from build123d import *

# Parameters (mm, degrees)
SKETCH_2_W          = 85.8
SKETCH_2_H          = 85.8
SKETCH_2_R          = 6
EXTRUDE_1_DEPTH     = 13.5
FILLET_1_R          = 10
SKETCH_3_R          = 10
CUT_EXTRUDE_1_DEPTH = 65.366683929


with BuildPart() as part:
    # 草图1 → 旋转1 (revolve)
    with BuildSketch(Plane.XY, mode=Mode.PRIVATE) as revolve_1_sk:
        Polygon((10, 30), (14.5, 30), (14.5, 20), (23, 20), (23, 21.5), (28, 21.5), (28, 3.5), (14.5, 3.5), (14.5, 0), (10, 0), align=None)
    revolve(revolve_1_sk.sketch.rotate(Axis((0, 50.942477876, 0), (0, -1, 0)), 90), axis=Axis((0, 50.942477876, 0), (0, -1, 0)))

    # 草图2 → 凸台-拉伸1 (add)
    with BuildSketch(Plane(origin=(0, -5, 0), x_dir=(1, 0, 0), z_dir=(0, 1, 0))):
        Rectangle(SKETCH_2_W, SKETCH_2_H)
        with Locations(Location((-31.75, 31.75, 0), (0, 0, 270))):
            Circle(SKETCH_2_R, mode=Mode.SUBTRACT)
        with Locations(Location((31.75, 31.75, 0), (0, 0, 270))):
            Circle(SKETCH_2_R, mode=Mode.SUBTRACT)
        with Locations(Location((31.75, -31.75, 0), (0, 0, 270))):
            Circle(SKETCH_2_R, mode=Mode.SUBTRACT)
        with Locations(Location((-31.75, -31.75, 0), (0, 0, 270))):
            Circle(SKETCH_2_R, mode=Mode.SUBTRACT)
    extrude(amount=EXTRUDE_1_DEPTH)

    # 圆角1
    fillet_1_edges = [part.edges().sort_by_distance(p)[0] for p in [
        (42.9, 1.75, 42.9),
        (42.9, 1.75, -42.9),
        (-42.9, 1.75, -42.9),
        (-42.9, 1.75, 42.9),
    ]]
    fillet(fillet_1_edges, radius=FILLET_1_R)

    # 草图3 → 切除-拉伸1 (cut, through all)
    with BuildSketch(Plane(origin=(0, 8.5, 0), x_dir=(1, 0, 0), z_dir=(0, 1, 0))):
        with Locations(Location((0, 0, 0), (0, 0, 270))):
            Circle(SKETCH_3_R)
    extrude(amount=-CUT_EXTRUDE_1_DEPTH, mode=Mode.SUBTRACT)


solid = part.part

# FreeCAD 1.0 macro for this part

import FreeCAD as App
import Part
import Sketcher
Q = App.Units.Quantity


def edges_at(feature, points):
    """Names of the edges that pass closest to the given points."""
    edges = feature.Shape.Edges
    near = lambda p: min(range(len(edges)), key=lambda i: edges[i].distToShape(Part.Vertex(*p))[0])
    return sorted({f"Edge{near(p) + 1}" for p in points})

doc = App.newDocument("Part")
body = doc.addObject("PartDesign::Body", "Body")

sketch1 = body.newObject("Sketcher::SketchObject", "Sketch")
sketch1.AttachmentSupport = (doc.getObject("XY_Plane"), [""])
sketch1.MapMode = "FlatFace"
sketch1.addGeometry([
    Part.LineSegment(App.Vector(14.5, 30, 0), App.Vector(10, 30, 0)),
    Part.LineSegment(App.Vector(10, 30, 0), App.Vector(10, 0, 0)),
    Part.LineSegment(App.Vector(10, 0, 0), App.Vector(14.5, 0, 0)),
    Part.LineSegment(App.Vector(14.5, 0, 0), App.Vector(14.5, 3.5, 0)),
    Part.LineSegment(App.Vector(14.5, 3.5, 0), App.Vector(28, 3.5, 0)),
    Part.LineSegment(App.Vector(28, 3.5, 0), App.Vector(28, 21.5, 0)),
    Part.LineSegment(App.Vector(28, 21.5, 0), App.Vector(23, 21.5, 0)),
    Part.LineSegment(App.Vector(23, 21.5, 0), App.Vector(23, 20, 0)),
    Part.LineSegment(App.Vector(23, 20, 0), App.Vector(14.5, 20, 0)),
    Part.LineSegment(App.Vector(14.5, 20, 0), App.Vector(14.5, 30, 0)),
], False)
sketch1.addConstraint([
    Sketcher.Constraint("Coincident", 0, 2, 1, 1),
    Sketcher.Constraint("Coincident", 1, 2, 2, 1),
    Sketcher.Constraint("Coincident", 2, 2, 3, 1),
    Sketcher.Constraint("Coincident", 3, 2, 4, 1),
    Sketcher.Constraint("Coincident", 4, 2, 5, 1),
    Sketcher.Constraint("Coincident", 5, 2, 6, 1),
    Sketcher.Constraint("Coincident", 6, 2, 7, 1),
    Sketcher.Constraint("Coincident", 7, 2, 8, 1),
    Sketcher.Constraint("Coincident", 8, 2, 9, 1),
    Sketcher.Constraint("Coincident", 9, 2, 0, 1),
    Sketcher.Constraint("Horizontal", 0),
    Sketcher.Constraint("Vertical", 1),
    Sketcher.Constraint("Horizontal", 2),
    Sketcher.Constraint("Vertical", 3),
    Sketcher.Constraint("Horizontal", 4),
    Sketcher.Constraint("Vertical", 5),
    Sketcher.Constraint("Horizontal", 6),
    Sketcher.Constraint("Vertical", 7),
    Sketcher.Constraint("Horizontal", 8),
    Sketcher.Constraint("Vertical", 9),
    Sketcher.Constraint("PointOnObject", 1, 2, -1),
    Sketcher.Constraint("Vertical", 3, 2, 8, 2),
    Sketcher.Constraint("DistanceX", 6, 2, 6, 1, Q("5 mm")),
    Sketcher.Constraint("DistanceY", 1, 2, 1, 1, Q("30 mm")),
    Sketcher.Constraint("DistanceY", 5, 1, 5, 2, Q("18 mm")),
    Sketcher.Constraint("DistanceY", 9, 1, 9, 2, Q("10 mm")),
    Sketcher.Constraint("DistanceX", 0, 2, 0, 1, Q("4.5 mm")),
    Sketcher.Constraint("DistanceX", 4, 1, 4, 2, Q("13.5 mm")),
    Sketcher.Constraint("DistanceY", 3, 1, 3, 2, Q("3.5 mm")),
    Sketcher.Constraint("DistanceX", -1, 1, 0, 2, Q("10 mm")),
])
revolution = body.newObject("PartDesign::Revolution", "Revolution")
revolution.Profile = sketch1
revolution.ReferenceAxis = (sketch1, ["V_Axis"])
revolution.Angle = 360

sketch2 = body.newObject("Sketcher::SketchObject", "Sketch001")
sketch2.AttachmentSupport = (doc.getObject("XZ_Plane"), [""])
sketch2.MapMode = "FlatFace"
sketch2.AttachmentOffset = App.Placement(App.Vector(0, 0, 5), App.Rotation())
sketch2.addGeometry([
    Part.LineSegment(App.Vector(-43, -43, 0), App.Vector(-43, 43, 0)),
    Part.LineSegment(App.Vector(-43, 43, 0), App.Vector(43, 43, 0)),
    Part.LineSegment(App.Vector(43, 43, 0), App.Vector(43, -43, 0)),
    Part.LineSegment(App.Vector(43, -43, 0), App.Vector(-43, -43, 0)),
    Part.Circle(App.Vector(-32, 32, 0), App.Vector(0, 0, 1), 6),
    Part.Circle(App.Vector(32, 32, 0), App.Vector(0, 0, 1), 6),
    Part.Circle(App.Vector(-32, -32, 0), App.Vector(0, 0, 1), 6),
    Part.Circle(App.Vector(32, -32, 0), App.Vector(0, 0, 1), 6),
], False)
sketch2.addConstraint([
    Sketcher.Constraint("Coincident", 0, 2, 1, 1),
    Sketcher.Constraint("Coincident", 1, 2, 2, 1),
    Sketcher.Constraint("Coincident", 2, 2, 3, 1),
    Sketcher.Constraint("Coincident", 3, 2, 0, 1),
    Sketcher.Constraint("Vertical", 0),
    Sketcher.Constraint("Horizontal", 1),
    Sketcher.Constraint("Vertical", 2),
    Sketcher.Constraint("Horizontal", 3),
    Sketcher.Constraint("Equal", 4, 5),
    Sketcher.Constraint("Equal", 5, 6),
    Sketcher.Constraint("Equal", 6, 7),
    Sketcher.Constraint("Symmetric", 5, 3, 6, 3, -1, 1),
    Sketcher.Constraint("Symmetric", 4, 3, 7, 3, -1, 1),
    Sketcher.Constraint("Symmetric", 0, 2, 2, 2, -1, 1),
    Sketcher.Constraint("Symmetric", 4, 3, 5, 3, -2),
    Sketcher.Constraint("Equal", 3, 0),
    Sketcher.Constraint("Diameter", 4, Q("12 mm")),
    Sketcher.Constraint("DistanceX", 1, 1, 1, 2, Q("85.8 mm")),
    Sketcher.Constraint("DistanceX", 4, 3, 5, 3, Q("63.5 mm")),
    Sketcher.Constraint("DistanceY", 6, 3, 4, 3, Q("63.5 mm")),
])
pad1 = body.newObject("PartDesign::Pad", "Pad")
pad1.Profile = sketch2
pad1.Length = 13.5
pad1.Reversed = True
doc.recompute()

fillet = body.newObject("PartDesign::Fillet", "Fillet")
fillet.Base = (pad1, edges_at(pad1, [
    (42.9, 1.75, 42.9),
    (42.9, 1.75, -42.9),
    (-42.9, 1.75, -42.9),
    (-42.9, 1.75, 42.9),
]))
fillet.Radius = 10

sketch3 = body.newObject("Sketcher::SketchObject", "Sketch002")
sketch3.AttachmentSupport = (doc.getObject("XZ_Plane"), [""])
sketch3.MapMode = "FlatFace"
sketch3.AttachmentOffset = App.Placement(App.Vector(0, 0, -8.5), App.Rotation())
sketch3.addGeometry(Part.Circle(App.Vector(0, 0, 0), App.Vector(0, 0, 1), 10), False)
sketch3.addConstraint([
    Sketcher.Constraint("Coincident", 0, 3, -1, 1),
    Sketcher.Constraint("Diameter", 0, Q("20 mm")),
])
pocket1 = body.newObject("PartDesign::Pocket", "Pocket")
pocket1.Profile = sketch3
pocket1.Type = "ThroughAll"
pocket1.Reversed = True

doc.recompute()
